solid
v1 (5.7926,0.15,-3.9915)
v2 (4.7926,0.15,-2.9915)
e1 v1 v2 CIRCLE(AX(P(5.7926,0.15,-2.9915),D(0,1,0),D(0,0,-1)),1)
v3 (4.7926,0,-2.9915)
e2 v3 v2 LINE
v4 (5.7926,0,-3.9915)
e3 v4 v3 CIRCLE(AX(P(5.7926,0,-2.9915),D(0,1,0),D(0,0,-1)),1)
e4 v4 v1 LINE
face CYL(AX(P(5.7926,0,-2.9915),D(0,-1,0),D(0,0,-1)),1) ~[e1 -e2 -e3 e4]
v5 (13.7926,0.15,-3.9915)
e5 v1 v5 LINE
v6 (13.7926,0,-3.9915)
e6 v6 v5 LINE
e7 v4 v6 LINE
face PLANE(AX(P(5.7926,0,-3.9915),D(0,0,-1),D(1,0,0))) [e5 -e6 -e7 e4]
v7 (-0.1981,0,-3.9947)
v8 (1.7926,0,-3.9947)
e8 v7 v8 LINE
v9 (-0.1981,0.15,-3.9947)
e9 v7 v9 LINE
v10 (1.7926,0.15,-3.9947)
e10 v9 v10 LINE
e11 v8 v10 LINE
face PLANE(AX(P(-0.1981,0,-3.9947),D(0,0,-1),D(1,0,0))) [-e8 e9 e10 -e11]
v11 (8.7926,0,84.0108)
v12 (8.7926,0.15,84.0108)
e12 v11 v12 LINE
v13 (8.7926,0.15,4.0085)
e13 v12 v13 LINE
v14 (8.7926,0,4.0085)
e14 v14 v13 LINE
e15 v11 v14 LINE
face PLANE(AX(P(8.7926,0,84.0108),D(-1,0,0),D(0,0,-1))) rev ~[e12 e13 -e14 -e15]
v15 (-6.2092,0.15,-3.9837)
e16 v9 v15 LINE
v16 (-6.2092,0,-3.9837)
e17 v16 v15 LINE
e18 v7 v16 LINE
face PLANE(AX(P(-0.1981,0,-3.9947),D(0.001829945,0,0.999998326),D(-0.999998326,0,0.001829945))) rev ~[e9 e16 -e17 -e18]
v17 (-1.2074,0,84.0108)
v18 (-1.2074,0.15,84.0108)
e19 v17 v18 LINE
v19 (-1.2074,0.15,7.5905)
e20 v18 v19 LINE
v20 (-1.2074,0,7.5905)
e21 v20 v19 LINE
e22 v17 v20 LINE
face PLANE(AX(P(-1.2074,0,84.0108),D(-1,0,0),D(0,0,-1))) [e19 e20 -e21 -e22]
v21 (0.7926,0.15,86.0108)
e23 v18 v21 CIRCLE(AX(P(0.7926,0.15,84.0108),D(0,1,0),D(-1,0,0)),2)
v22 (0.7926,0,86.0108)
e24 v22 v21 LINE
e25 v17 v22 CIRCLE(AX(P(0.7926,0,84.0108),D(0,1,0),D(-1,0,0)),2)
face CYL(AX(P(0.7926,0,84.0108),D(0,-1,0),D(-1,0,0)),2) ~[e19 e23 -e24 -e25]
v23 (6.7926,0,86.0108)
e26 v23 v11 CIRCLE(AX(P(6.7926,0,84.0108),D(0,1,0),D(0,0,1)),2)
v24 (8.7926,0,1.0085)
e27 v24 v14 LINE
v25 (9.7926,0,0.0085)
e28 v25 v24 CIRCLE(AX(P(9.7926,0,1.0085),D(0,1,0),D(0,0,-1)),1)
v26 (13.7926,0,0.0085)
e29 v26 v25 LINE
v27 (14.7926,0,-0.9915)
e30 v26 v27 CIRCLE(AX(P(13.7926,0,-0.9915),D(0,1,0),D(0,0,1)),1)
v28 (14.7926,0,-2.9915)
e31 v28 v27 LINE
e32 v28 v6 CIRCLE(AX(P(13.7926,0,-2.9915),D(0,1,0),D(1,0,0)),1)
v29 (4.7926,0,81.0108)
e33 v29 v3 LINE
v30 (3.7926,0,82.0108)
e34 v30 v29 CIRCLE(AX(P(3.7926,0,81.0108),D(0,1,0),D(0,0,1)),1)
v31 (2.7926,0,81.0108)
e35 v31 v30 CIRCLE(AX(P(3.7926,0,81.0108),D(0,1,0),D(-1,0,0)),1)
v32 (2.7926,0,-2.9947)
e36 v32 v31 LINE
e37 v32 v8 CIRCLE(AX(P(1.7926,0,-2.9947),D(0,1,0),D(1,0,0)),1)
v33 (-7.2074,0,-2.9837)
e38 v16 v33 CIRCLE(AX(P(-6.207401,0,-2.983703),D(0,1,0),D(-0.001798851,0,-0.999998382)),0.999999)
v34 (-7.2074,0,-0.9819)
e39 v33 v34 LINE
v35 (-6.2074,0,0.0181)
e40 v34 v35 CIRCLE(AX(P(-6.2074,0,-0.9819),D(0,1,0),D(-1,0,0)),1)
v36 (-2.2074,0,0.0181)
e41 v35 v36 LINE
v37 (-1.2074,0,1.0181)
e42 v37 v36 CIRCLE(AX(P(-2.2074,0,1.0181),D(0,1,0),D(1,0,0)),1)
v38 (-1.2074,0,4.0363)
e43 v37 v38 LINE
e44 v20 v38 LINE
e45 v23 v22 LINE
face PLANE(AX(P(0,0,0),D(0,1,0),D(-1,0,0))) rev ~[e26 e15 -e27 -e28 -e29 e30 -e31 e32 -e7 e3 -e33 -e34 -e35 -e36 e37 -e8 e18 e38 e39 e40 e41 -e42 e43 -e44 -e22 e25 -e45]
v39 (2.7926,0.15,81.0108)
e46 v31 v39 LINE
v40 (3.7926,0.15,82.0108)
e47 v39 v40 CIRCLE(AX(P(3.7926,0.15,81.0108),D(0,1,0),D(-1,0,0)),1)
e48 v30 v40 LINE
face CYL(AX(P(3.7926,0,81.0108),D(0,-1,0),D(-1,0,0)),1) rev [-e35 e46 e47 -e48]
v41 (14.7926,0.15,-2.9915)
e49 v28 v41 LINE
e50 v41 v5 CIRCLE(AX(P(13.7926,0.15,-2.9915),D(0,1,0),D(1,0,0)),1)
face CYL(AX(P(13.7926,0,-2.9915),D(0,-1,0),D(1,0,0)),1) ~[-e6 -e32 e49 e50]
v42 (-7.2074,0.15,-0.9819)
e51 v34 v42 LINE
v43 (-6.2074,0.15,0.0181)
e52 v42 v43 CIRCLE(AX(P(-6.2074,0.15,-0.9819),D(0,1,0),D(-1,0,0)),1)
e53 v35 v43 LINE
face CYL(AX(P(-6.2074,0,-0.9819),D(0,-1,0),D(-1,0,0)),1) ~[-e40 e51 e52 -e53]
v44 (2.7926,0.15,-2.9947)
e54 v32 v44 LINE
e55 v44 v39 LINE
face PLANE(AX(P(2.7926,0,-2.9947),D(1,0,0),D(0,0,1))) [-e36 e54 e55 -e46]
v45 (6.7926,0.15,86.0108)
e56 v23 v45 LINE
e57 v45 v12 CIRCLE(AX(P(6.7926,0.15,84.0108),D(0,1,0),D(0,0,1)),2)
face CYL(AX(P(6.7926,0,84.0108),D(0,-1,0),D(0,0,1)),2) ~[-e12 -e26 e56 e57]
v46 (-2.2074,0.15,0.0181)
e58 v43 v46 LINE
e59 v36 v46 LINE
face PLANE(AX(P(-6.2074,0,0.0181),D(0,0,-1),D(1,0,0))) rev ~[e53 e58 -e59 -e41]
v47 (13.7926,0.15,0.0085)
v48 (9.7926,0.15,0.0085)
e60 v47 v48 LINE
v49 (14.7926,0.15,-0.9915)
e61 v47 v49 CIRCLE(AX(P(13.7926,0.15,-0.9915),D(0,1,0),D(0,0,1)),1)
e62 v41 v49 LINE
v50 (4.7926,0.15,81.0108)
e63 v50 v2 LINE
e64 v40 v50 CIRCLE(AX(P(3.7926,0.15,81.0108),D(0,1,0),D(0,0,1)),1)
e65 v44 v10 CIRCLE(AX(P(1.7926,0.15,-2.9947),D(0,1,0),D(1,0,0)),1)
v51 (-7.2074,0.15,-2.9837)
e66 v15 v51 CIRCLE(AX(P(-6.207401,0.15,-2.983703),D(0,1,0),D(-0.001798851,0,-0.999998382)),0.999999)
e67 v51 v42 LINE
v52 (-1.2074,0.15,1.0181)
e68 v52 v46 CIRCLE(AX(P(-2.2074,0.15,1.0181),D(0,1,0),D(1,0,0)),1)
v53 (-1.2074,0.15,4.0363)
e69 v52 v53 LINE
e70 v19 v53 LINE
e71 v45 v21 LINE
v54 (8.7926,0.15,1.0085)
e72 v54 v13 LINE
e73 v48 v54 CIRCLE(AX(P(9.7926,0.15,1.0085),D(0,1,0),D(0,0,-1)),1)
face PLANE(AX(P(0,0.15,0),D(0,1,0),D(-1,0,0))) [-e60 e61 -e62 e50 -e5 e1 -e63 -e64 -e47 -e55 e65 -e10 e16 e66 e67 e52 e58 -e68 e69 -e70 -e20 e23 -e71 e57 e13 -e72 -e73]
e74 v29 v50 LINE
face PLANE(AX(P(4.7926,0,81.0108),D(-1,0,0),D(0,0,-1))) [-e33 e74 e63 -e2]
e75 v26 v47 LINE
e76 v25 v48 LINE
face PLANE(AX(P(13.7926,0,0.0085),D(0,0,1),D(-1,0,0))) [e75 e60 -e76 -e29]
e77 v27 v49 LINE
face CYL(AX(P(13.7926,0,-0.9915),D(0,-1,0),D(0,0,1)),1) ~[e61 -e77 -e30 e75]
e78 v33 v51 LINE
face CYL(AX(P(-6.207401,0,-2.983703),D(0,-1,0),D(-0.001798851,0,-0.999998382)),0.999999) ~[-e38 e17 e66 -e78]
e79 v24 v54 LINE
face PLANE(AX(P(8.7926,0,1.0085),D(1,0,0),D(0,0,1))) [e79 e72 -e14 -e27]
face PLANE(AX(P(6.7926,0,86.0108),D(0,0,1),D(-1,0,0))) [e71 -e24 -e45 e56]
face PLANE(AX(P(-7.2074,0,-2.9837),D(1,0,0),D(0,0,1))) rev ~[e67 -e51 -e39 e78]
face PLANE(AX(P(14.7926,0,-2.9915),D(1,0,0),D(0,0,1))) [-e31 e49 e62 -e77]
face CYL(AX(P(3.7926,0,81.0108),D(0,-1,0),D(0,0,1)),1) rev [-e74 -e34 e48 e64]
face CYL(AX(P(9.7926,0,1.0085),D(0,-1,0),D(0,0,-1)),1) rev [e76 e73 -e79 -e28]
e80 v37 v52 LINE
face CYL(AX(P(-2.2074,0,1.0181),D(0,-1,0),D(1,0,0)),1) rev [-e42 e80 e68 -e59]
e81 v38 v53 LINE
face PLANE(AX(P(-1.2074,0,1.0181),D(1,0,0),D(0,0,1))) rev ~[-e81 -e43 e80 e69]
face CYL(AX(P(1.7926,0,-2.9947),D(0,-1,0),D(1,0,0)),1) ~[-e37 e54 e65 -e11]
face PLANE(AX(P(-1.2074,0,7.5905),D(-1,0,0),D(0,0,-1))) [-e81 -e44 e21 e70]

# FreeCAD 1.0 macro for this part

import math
import FreeCAD as App
import Part
import Sketcher

V = App.Vector

doc = App.newDocument("Part")
body = doc.addObject("PartDesign::Body", "Body")

# Sketch on XZ plane
sketch1 = body.newObject("Sketcher::SketchObject", "Sketch")
sketch1.AttachmentSupport = (doc.getObject("XZ_Plane"), [""])
sketch1.MapMode = "FlatFace"
sketch1.addGeometry([
    Part.LineSegment(V(1.8, -4, 0), V(-0.2, -4, 0)),  # 0
    Part.LineSegment(V(-0.2, -4, 0), V(-6.2, -4, 0)),  # 1
    Part.ArcOfCircle(Part.Circle(V(-6.2, -3, 0), V(0, 0, 1), 1), math.radians(180), math.radians(270)),  # 2
    Part.LineSegment(V(-7.2, -3, 0), V(-7.2, -1, 0)),  # 3
    Part.ArcOfCircle(Part.Circle(V(-6.2, -1, 0), V(0, 0, 1), 1), math.radians(90), math.radians(180)),  # 4
    Part.LineSegment(V(-6.2, 0, 0), V(-2.2, 0, 0)),  # 5
    Part.ArcOfCircle(Part.Circle(V(-2.2, 1, 0), V(0, 0, 1), 1), math.radians(-90), math.radians(0)),  # 6
    Part.LineSegment(V(-1.2, 1, 0), V(-1.2, 84, 0)),  # 7
    Part.ArcOfCircle(Part.Circle(V(0.8, 84, 0), V(0, 0, 1), 2), math.radians(90), math.radians(180)),  # 8
    Part.LineSegment(V(0.8, 86, 0), V(6.8, 86, 0)),  # 9
    Part.ArcOfCircle(Part.Circle(V(6.8, 84, 0), V(0, 0, 1), 2), math.radians(0), math.radians(90)),  # 10
    Part.LineSegment(V(8.8, 84, 0), V(8.8, 1, 0)),  # 11
    Part.ArcOfCircle(Part.Circle(V(9.8, 1, 0), V(0, 0, 1), 1), math.radians(180), math.radians(270)),  # 12
    Part.LineSegment(V(9.8, 0, 0), V(13.8, 0, 0)),  # 13
    Part.ArcOfCircle(Part.Circle(V(13.8, -1, 0), V(0, 0, 1), 1), math.radians(0), math.radians(90)),  # 14
    Part.LineSegment(V(14.8, -1, 0), V(14.8, -3, 0)),  # 15
    Part.ArcOfCircle(Part.Circle(V(13.8, -3, 0), V(0, 0, 1), 1), math.radians(-90), math.radians(0)),  # 16
    Part.LineSegment(V(13.8, -4, 0), V(5.8, -4, 0)),  # 17
    Part.ArcOfCircle(Part.Circle(V(5.8, -3, 0), V(0, 0, 1), 1), math.radians(180), math.radians(270)),  # 18
    Part.LineSegment(V(4.8, -3, 0), V(4.8, 81, 0)),  # 19
    Part.ArcOfCircle(Part.Circle(V(3.8, 81, 0), V(0, 0, 1), 1), math.radians(0), math.radians(180)),  # 20
    Part.LineSegment(V(2.8, 81, 0), V(2.8, -3, 0)),  # 21
    Part.ArcOfCircle(Part.Circle(V(1.8, -3, 0), V(0, 0, 1), 1), math.radians(-90), math.radians(0)),  # 22
], False)
sketch1.addConstraint([
    Sketcher.Constraint("Coincident", 0, 2, 1, 1),
    Sketcher.Constraint("Tangent", 1, 2, 2, 2),
    Sketcher.Constraint("Tangent", 2, 1, 3, 1),
    Sketcher.Constraint("Tangent", 3, 2, 4, 2),
    Sketcher.Constraint("Tangent", 4, 1, 5, 1),
    Sketcher.Constraint("Tangent", 5, 2, 6, 1),
    Sketcher.Constraint("Tangent", 6, 2, 7, 1),
    Sketcher.Constraint("Tangent", 7, 2, 8, 2),
    Sketcher.Constraint("Tangent", 8, 1, 9, 1),
    Sketcher.Constraint("Tangent", 9, 2, 10, 2),
    Sketcher.Constraint("Tangent", 10, 1, 11, 1),
    Sketcher.Constraint("Tangent", 11, 2, 12, 1),
    Sketcher.Constraint("Tangent", 12, 2, 13, 1),
    Sketcher.Constraint("Tangent", 13, 2, 14, 2),
    Sketcher.Constraint("Tangent", 14, 1, 15, 1),
    Sketcher.Constraint("Tangent", 15, 2, 16, 2),
    Sketcher.Constraint("Tangent", 16, 1, 17, 1),
    Sketcher.Constraint("Tangent", 17, 2, 18, 2),
    Sketcher.Constraint("Tangent", 18, 1, 19, 1),
    Sketcher.Constraint("Tangent", 19, 2, 20, 1),
    Sketcher.Constraint("Tangent", 20, 2, 21, 1),
    Sketcher.Constraint("Tangent", 21, 2, 22, 2),
    Sketcher.Constraint("Tangent", 22, 1, 0, 1),
    Sketcher.Constraint("Horizontal", 0),
    Sketcher.Constraint("Vertical", 3),
    Sketcher.Constraint("Horizontal", 5),
    Sketcher.Constraint("Vertical", 7),
    Sketcher.Constraint("Horizontal", 9),
    Sketcher.Constraint("Vertical", 11),
    Sketcher.Constraint("Horizontal", 13),
    Sketcher.Constraint("Vertical", 15),
    Sketcher.Constraint("Horizontal", 17),
    Sketcher.Constraint("Vertical", 19),
    Sketcher.Constraint("Vertical", 21),
    Sketcher.Constraint("Equal", 2, 4),
    Sketcher.Constraint("Equal", 4, 6),
    Sketcher.Constraint("Equal", 8, 10),
    Sketcher.Constraint("Equal", 6, 12),
    Sketcher.Constraint("Equal", 12, 14),
    Sketcher.Constraint("Equal", 14, 16),
    Sketcher.Constraint("Equal", 16, 18),
    Sketcher.Constraint("Equal", 18, 20),
    Sketcher.Constraint("Equal", 20, 22),
    Sketcher.Constraint("Equal", 5, 13),
    Sketcher.Constraint("Radius", 2, 1.0),
    Sketcher.Constraint("Radius", 8, 2.0),
    Sketcher.Constraint("DistanceX", 5, 1, 5, 2, 4.0),
    Sketcher.Constraint("DistanceY", 15, 2, 15, 1, 2.0),
    Sketcher.Constraint("DistanceX", 18, 3, 12, 3, 4.0),
    Sketcher.Constraint("DistanceX", 4, 3, 20, 3, 10.0),
    Sketcher.Constraint("DistanceY", 20, 3, 8, 3, 3.0),
    Sketcher.Constraint("Distance", 1, 6.011),
    Sketcher.Constraint("DistanceX", 0, 2, 0, 1, 1.9907),
    Sketcher.Constraint("DistanceY", 3, 1, 3, 2, 2.0018),
    Sketcher.Constraint("DistanceY", 7, 1, 7, 2, 82.9927),
    Sketcher.Constraint("DistanceY", 11, 2, 11, 1, 83.0023),
    Sketcher.Constraint("DistanceY", 4, 3, -1, 1, 0.982),
    Sketcher.Constraint("DistanceX", 0, 2, -1, 1, 0.198),
])
pad1 = body.newObject("PartDesign::Pad", "Pad")
pad1.Profile = sketch1
pad1.Length = 0.15
pad1.Reversed = True

doc.recompute()
